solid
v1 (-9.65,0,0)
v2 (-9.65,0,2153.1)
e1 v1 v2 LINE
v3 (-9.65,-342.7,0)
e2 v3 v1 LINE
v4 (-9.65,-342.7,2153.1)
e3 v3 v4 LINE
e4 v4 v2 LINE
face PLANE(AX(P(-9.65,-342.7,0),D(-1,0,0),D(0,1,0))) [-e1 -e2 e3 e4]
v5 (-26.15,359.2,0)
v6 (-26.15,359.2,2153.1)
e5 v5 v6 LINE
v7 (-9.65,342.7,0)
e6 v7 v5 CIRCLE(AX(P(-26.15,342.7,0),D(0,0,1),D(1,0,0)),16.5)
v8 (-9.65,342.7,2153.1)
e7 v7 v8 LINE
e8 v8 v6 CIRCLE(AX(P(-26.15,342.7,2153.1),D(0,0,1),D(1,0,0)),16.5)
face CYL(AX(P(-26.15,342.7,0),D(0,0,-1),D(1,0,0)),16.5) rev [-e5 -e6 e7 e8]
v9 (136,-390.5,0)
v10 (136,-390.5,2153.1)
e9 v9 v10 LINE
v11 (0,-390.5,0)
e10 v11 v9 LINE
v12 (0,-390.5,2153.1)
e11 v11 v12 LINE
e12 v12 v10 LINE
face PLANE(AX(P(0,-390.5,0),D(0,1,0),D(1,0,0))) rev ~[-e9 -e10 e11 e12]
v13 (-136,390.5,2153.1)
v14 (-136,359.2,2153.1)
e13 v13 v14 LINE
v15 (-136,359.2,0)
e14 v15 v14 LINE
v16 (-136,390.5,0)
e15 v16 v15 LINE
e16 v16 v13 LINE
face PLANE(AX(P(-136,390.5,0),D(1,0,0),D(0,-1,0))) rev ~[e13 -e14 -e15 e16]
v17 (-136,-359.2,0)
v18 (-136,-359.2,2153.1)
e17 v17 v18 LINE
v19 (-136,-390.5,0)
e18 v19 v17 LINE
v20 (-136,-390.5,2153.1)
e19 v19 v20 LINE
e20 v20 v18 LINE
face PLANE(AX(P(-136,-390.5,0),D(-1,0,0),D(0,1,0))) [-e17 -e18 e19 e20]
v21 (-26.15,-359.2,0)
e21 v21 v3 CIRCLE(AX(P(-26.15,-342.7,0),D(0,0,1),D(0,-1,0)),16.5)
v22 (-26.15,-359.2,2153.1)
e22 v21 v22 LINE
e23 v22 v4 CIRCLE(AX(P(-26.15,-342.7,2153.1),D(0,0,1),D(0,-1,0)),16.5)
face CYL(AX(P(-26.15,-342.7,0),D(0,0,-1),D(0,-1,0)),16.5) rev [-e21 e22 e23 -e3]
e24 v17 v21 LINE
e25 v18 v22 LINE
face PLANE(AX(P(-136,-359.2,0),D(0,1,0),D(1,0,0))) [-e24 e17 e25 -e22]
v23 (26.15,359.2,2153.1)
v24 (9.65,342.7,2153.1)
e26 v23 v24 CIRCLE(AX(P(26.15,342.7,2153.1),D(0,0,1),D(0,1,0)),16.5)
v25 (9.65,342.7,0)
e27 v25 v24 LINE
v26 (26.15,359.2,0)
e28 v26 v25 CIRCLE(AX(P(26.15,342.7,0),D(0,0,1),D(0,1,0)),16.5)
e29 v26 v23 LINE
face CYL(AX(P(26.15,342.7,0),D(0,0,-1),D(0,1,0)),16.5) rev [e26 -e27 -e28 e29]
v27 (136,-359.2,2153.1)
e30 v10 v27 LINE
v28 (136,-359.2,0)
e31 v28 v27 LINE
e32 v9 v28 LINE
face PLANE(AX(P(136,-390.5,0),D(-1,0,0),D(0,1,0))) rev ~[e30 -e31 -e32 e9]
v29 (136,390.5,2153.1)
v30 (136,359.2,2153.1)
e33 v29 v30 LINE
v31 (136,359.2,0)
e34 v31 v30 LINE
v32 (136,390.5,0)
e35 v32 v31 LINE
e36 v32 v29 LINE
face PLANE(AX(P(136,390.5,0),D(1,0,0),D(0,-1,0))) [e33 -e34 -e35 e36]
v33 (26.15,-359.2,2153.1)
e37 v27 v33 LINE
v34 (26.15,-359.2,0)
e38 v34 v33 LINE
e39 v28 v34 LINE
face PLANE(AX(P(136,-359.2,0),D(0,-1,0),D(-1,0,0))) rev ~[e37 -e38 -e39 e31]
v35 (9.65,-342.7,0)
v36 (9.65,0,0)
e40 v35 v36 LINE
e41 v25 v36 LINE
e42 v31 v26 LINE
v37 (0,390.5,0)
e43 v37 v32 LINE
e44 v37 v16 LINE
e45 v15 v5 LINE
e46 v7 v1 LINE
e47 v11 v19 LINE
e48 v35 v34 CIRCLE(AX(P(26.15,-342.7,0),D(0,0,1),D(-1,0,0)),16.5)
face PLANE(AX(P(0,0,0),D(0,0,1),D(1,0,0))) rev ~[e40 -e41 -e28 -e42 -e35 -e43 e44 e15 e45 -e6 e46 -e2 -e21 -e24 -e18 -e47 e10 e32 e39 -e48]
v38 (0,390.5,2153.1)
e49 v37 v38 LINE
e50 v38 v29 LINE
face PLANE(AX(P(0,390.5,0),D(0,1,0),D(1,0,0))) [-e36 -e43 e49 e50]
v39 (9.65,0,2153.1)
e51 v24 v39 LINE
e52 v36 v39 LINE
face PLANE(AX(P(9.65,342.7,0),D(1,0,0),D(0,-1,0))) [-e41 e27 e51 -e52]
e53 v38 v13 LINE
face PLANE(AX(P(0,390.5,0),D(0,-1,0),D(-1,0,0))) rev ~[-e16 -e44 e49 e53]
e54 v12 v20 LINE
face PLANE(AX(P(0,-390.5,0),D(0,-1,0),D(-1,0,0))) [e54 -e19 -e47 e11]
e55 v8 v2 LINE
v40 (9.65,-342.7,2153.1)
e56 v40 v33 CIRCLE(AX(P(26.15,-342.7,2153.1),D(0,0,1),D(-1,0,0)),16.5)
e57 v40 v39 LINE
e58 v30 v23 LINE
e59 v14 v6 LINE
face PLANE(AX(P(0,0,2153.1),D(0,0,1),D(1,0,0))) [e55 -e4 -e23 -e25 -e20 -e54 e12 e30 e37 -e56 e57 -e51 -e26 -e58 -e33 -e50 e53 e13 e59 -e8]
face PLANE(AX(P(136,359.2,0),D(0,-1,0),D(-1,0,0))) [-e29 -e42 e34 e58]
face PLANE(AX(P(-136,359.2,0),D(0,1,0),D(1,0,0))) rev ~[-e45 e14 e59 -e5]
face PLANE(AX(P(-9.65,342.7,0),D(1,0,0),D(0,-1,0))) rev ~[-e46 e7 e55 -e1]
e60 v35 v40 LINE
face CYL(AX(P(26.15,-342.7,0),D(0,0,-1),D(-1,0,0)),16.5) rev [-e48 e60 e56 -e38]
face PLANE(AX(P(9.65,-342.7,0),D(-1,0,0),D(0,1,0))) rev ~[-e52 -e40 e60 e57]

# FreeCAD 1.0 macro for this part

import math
import FreeCAD as App
import Part
import Sketcher

V = App.Vector

doc = App.newDocument("Part")
params = doc.addObject("Spreadsheet::Sheet", "Params")
for row, (alias, value) in enumerate([
    ("sketch1_radius", "16.5 mm"),
    ("sketch1_height", "31.3 mm"),
    ("pad1_length", "2153.1 mm"),
], start=1):
    params.set(f"A{row}", alias)
    params.set(f"B{row}", "=" + value)
    params.setAlias(f"B{row}", alias)

body = doc.addObject("PartDesign::Body", "Body")

sketch1 = body.newObject("Sketcher::SketchObject", "Sketch")
sketch1.AttachmentSupport = (doc.getObject("XY_Plane"), [""])
sketch1.MapMode = "FlatFace"
sketch1.addGeometry(Part.LineSegment(V(-136, -359, 0), V(-136, -390, 0)), False)
sketch1.addGeometry(Part.LineSegment(V(-136, -390, 0), V(136, -390, 0)), False)
sketch1.addGeometry(Part.LineSegment(V(136, -390, 0), V(136, -359, 0)), False)
sketch1.addGeometry(Part.LineSegment(V(136, -359, 0), V(26, -359, 0)), False)
sketch1.addGeometry(Part.ArcOfCircle(Part.Circle(V(26, -343, 0), V(0, 0, 1), 16), math.radians(180), math.radians(270)), False)
sketch1.addGeometry(Part.LineSegment(V(10, -343, 0), V(10, 343, 0)), False)
sketch1.addGeometry(Part.ArcOfCircle(Part.Circle(V(26, 343, 0), V(0, 0, 1), 16), math.radians(90), math.radians(180)), False)
sketch1.addGeometry(Part.LineSegment(V(26, 359, 0), V(136, 359, 0)), False)
sketch1.addGeometry(Part.LineSegment(V(136, 359, 0), V(136, 390, 0)), False)
sketch1.addGeometry(Part.LineSegment(V(136, 390, 0), V(-136, 390, 0)), False)
sketch1.addGeometry(Part.LineSegment(V(-136, 390, 0), V(-136, 359, 0)), False)
sketch1.addGeometry(Part.LineSegment(V(-136, 359, 0), V(-26, 359, 0)), False)
sketch1.addGeometry(Part.ArcOfCircle(Part.Circle(V(-26, 343, 0), V(0, 0, 1), 16), math.radians(0), math.radians(90)), False)
sketch1.addGeometry(Part.LineSegment(V(-10, 343, 0), V(-10, -343, 0)), False)
sketch1.addGeometry(Part.ArcOfCircle(Part.Circle(V(-26, -343, 0), V(0, 0, 1), 16), math.radians(-90), math.radians(0)), False)
sketch1.addGeometry(Part.LineSegment(V(-26, -359, 0), V(-136, -359, 0)), False)
sketch1.addConstraint(Sketcher.Constraint("Coincident", 0, 2, 1, 1))
sketch1.addConstraint(Sketcher.Constraint("Coincident", 1, 2, 2, 1))
sketch1.addConstraint(Sketcher.Constraint("Coincident", 2, 2, 3, 1))
sketch1.addConstraint(Sketcher.Constraint("Tangent", 3, 2, 4, 2))
sketch1.addConstraint(Sketcher.Constraint("Tangent", 4, 1, 5, 1))
sketch1.addConstraint(Sketcher.Constraint("Tangent", 5, 2, 6, 2))
sketch1.addConstraint(Sketcher.Constraint("Tangent", 6, 1, 7, 1))
sketch1.addConstraint(Sketcher.Constraint("Coincident", 7, 2, 8, 1))
sketch1.addConstraint(Sketcher.Constraint("Coincident", 8, 2, 9, 1))
sketch1.addConstraint(Sketcher.Constraint("Coincident", 9, 2, 10, 1))
sketch1.addConstraint(Sketcher.Constraint("Coincident", 10, 2, 11, 1))
sketch1.addConstraint(Sketcher.Constraint("Tangent", 11, 2, 12, 2))
sketch1.addConstraint(Sketcher.Constraint("Tangent", 12, 1, 13, 1))
sketch1.addConstraint(Sketcher.Constraint("Tangent", 13, 2, 14, 2))
sketch1.addConstraint(Sketcher.Constraint("Tangent", 14, 1, 15, 1))
sketch1.addConstraint(Sketcher.Constraint("Coincident", 15, 2, 0, 1))
sketch1.addConstraint(Sketcher.Constraint("Vertical", 0))
sketch1.addConstraint(Sketcher.Constraint("Horizontal", 1))
sketch1.addConstraint(Sketcher.Constraint("Vertical", 2))
sketch1.addConstraint(Sketcher.Constraint("Horizontal", 3))
sketch1.addConstraint(Sketcher.Constraint("Vertical", 5))
sketch1.addConstraint(Sketcher.Constraint("Horizontal", 7))
sketch1.addConstraint(Sketcher.Constraint("Vertical", 8))
sketch1.addConstraint(Sketcher.Constraint("Horizontal", 9))
sketch1.addConstraint(Sketcher.Constraint("Vertical", 10))
sketch1.addConstraint(Sketcher.Constraint("Horizontal", 11))
sketch1.addConstraint(Sketcher.Constraint("Vertical", 13))
sketch1.addConstraint(Sketcher.Constraint("Horizontal", 15))
sketch1.addConstraint(Sketcher.Constraint("Equal", 4, 6))
sketch1.addConstraint(Sketcher.Constraint("Equal", 6, 12))
sketch1.addConstraint(Sketcher.Constraint("Equal", 12, 14))
sketch1.addConstraint(Sketcher.Constraint("Symmetric", 4, 3, 12, 3, -1, 1))
sketch1.addConstraint(Sketcher.Constraint("Symmetric", 0, 2, 8, 2, -1, 1))
sketch1.addConstraint(Sketcher.Constraint("Symmetric", 7, 2, 10, 2, -2))
sketch1.addConstraint(Sketcher.Constraint("Symmetric", 2, 2, 15, 2, -2))
sketch1.addConstraint(Sketcher.Constraint("Radius", 4, 16.5))
sketch1.addConstraint(Sketcher.Constraint("DistanceY", 0, 2, 0, 1, 31.3))
sketch1.addConstraint(Sketcher.Constraint("DistanceX", 0, 2, -1, 1, 136.0))
sketch1.addConstraint(Sketcher.Constraint("DistanceY", 0, 2, -1, 1, 390.5))
sketch1.addConstraint(Sketcher.Constraint("DistanceX", -1, 1, 4, 1, 9.65))
sketch1.setExpression("Constraints[35]", "Params.sketch1_radius")
sketch1.setExpression("Constraints[36]", "Params.sketch1_height")
pad1 = body.newObject("PartDesign::Pad", "Pad")
pad1.Profile = sketch1
pad1.setExpression("Length", "Params.pad1_length")

doc.recompute()
